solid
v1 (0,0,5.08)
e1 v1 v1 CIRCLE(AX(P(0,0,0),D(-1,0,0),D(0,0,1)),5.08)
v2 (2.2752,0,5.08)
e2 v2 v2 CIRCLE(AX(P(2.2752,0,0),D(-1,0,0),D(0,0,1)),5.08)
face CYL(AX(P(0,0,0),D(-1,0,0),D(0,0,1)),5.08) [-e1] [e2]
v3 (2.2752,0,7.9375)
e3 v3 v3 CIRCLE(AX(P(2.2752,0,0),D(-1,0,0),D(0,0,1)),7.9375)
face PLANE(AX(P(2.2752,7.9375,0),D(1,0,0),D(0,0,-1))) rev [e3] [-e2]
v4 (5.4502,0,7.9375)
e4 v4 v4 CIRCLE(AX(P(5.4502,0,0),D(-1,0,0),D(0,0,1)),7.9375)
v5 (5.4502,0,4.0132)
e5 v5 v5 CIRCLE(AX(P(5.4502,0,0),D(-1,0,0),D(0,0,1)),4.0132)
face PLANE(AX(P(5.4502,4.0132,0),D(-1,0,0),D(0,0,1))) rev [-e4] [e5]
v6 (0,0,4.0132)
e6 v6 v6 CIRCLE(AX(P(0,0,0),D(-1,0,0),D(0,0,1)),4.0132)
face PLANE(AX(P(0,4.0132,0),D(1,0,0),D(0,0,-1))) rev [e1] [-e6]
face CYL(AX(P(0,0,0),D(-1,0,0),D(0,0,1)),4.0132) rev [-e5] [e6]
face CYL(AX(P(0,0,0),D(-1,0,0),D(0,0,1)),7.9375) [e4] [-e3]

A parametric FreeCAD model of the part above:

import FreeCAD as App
import Part
import Sketcher

V = App.Vector
Q = App.Units.Quantity

doc = App.newDocument("Part")
params = doc.addObject("Spreadsheet::Sheet", "Params")
for row, (alias, value) in enumerate([
    ("sketch1_width", "0.125 in"),
    ("sketch1_height", "0.042 in"),
    ("revolution_angle", "360 deg"),
], start=1):
    params.set(f"A{row}", alias)
    params.set(f"B{row}", "=" + value)
    params.setAlias(f"B{row}", alias)

body = doc.addObject("PartDesign::Body", "Body")

# Sketch on XY plane
sketch1 = body.newObject("Sketcher::SketchObject", "Sketch")
sketch1.AttachmentSupport = (doc.getObject("XY_Plane"), [""])
sketch1.MapMode = "FlatFace"
sketch1.addGeometry(Part.LineSegment(V(2.3, 7.9, 0), V(2.3, 5.1, 0)), False)
sketch1.addGeometry(Part.LineSegment(V(2.3, 5.1, 0), V(0, 5.1, 0)), False)
sketch1.addGeometry(Part.LineSegment(V(0, 5.1, 0), V(0, 4, 0)), False)
sketch1.addGeometry(Part.LineSegment(V(0, 4, 0), V(5.5, 4, 0)), False)
sketch1.addGeometry(Part.LineSegment(V(5.5, 4, 0), V(5.5, 7.9, 0)), False)
sketch1.addGeometry(Part.LineSegment(V(5.5, 7.9, 0), V(2.3, 7.9, 0)), False)
sketch1.addConstraint(Sketcher.Constraint("Coincident", 0, 2, 1, 1))
sketch1.addConstraint(Sketcher.Constraint("Coincident", 1, 2, 2, 1))
sketch1.addConstraint(Sketcher.Constraint("Coincident", 2, 2, 3, 1))
sketch1.addConstraint(Sketcher.Constraint("Coincident", 3, 2, 4, 1))
sketch1.addConstraint(Sketcher.Constraint("Coincident", 4, 2, 5, 1))
sketch1.addConstraint(Sketcher.Constraint("Coincident", 5, 2, 0, 1))
sketch1.addConstraint(Sketcher.Constraint("Vertical", 0))
sketch1.addConstraint(Sketcher.Constraint("Horizontal", 1))
sketch1.addConstraint(Sketcher.Constraint("Vertical", 2))
sketch1.addConstraint(Sketcher.Constraint("Horizontal", 3))
sketch1.addConstraint(Sketcher.Constraint("Vertical", 4))
sketch1.addConstraint(Sketcher.Constraint("Horizontal", 5))
sketch1.addConstraint(Sketcher.Constraint("PointOnObject", 1, 2, -2))
sketch1.addConstraint(Sketcher.Constraint("DistanceY", -1, 1, 0, 2, Q("0.2 in")))
sketch1.addConstraint(Sketcher.Constraint("DistanceX", 5, 2, 5, 1, Q("0.125 in")))
sketch1.addConstraint(Sketcher.Constraint("DistanceY", 2, 2, 2, 1, Q("0.042 in")))
sketch1.addConstraint(Sketcher.Constraint("DistanceY", 0, 2, 0, 1, Q("0.1125 in")))
sketch1.addConstraint(Sketcher.Constraint("DistanceX", 1, 2, 1, 1, 2.2752))
sketch1.setExpression("Constraints[14]", "Params.sketch1_width")
sketch1.setExpression("Constraints[15]", "Params.sketch1_height")
revolution = body.newObject("PartDesign::Revolution", "Revolution")
revolution.Profile = sketch1
revolution.ReferenceAxis = (sketch1, ["H_Axis"])
revolution.setExpression("Angle", "Params.revolution_angle")

doc.recompute()
